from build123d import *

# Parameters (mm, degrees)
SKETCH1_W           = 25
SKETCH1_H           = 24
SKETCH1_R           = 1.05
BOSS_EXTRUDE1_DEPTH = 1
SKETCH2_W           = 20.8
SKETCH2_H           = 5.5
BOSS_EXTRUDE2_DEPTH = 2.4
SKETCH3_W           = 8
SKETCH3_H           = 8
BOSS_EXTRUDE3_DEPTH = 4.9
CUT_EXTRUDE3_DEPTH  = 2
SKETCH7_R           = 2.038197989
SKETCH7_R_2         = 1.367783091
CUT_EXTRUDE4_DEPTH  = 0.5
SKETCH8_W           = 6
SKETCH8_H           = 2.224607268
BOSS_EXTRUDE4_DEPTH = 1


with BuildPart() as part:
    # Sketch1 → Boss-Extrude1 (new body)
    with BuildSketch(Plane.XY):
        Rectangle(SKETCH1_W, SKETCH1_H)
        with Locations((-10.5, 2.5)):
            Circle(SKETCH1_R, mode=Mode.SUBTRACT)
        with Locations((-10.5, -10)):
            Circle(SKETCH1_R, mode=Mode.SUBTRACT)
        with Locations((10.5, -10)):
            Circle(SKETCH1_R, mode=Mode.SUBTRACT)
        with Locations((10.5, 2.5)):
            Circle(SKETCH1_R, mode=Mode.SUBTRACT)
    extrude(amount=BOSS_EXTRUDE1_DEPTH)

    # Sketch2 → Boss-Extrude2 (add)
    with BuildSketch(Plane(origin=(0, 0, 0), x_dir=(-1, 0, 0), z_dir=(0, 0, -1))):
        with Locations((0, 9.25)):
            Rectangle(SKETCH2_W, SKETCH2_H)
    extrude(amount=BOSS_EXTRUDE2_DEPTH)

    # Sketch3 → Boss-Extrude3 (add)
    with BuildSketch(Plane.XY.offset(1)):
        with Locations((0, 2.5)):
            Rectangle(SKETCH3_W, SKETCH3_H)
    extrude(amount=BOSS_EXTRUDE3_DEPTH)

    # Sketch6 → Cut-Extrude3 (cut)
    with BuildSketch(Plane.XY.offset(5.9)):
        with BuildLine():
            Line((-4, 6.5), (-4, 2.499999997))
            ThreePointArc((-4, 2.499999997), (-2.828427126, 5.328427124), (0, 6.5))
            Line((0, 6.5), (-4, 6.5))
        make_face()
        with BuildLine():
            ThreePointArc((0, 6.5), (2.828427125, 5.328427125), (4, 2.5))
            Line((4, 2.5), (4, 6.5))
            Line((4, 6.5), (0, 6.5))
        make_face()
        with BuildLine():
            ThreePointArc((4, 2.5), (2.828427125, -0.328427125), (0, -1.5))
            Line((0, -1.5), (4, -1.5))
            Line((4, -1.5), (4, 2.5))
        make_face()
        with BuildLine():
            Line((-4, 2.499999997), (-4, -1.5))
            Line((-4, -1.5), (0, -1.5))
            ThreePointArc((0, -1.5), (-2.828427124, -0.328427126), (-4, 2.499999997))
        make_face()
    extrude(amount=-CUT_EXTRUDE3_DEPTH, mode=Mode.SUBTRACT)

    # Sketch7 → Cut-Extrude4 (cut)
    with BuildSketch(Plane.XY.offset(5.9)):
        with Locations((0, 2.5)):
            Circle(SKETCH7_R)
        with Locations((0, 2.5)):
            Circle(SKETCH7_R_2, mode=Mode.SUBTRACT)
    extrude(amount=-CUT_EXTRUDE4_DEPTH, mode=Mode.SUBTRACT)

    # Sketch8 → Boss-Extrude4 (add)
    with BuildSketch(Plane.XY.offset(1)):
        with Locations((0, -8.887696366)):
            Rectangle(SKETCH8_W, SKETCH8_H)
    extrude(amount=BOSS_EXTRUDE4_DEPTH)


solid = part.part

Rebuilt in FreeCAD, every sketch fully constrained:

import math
import FreeCAD as App
import Part
import Sketcher

V = App.Vector

doc = App.newDocument("Part")
body = doc.addObject("PartDesign::Body", "Body")

sketch1 = body.newObject("Sketcher::SketchObject", "Sketch")
sketch1.AttachmentSupport = (doc.getObject("XY_Plane"), [""])
sketch1.MapMode = "FlatFace"
sketch1.addGeometry([
    Part.LineSegment(V(-12.5, 12, 0), V(-12.5, -12, 0)),
    Part.LineSegment(V(-12.5, -12, 0), V(12.5, -12, 0)),
    Part.LineSegment(V(12.5, -12, 0), V(12.5, 12, 0)),
    Part.LineSegment(V(12.5, 12, 0), V(-12.5, 12, 0)),
    Part.Circle(V(-10.5, -10, 0), V(0, 0, 1), 1.05),
    Part.Circle(V(10.5, -10, 0), V(0, 0, 1), 1.05),
    Part.Circle(V(-10.5, 2.5, 0), V(0, 0, 1), 1.05),
    Part.Circle(V(10.5, 2.5, 0), V(0, 0, 1), 1.05),
], False)
sketch1.addConstraint([
    Sketcher.Constraint("Coincident", 0, 2, 1, 1),
    Sketcher.Constraint("Coincident", 1, 2, 2, 1),
    Sketcher.Constraint("Coincident", 2, 2, 3, 1),
    Sketcher.Constraint("Coincident", 3, 2, 0, 1),
    Sketcher.Constraint("Vertical", 0),
    Sketcher.Constraint("Horizontal", 1),
    Sketcher.Constraint("Vertical", 2),
    Sketcher.Constraint("Horizontal", 3),
    Sketcher.Constraint("Equal", 4, 5),
    Sketcher.Constraint("Equal", 5, 6),
    Sketcher.Constraint("Equal", 6, 7),
    Sketcher.Constraint("Symmetric", 0, 2, 2, 2, -1, 1),
    Sketcher.Constraint("Symmetric", 4, 3, 5, 3, -2),
    Sketcher.Constraint("Symmetric", 6, 3, 7, 3, -2),
    Sketcher.Constraint("Vertical", 4, 3, 6, 3),
    Sketcher.Constraint("Diameter", 4, 2.1),
    Sketcher.Constraint("DistanceX", 1, 1, 1, 2, 25.0),
    Sketcher.Constraint("DistanceY", 0, 2, 0, 1, 24.0),
    Sketcher.Constraint("DistanceY", 4, 3, -1, 1, 10.0),
    Sketcher.Constraint("DistanceX", 4, 3, 5, 3, 21.0),
    Sketcher.Constraint("DistanceY", -1, 1, 6, 3, 2.5),
])
pad1 = body.newObject("PartDesign::Pad", "Pad")
pad1.Profile = sketch1
pad1.Length = 1

sketch2 = body.newObject("Sketcher::SketchObject", "Sketch001")
sketch2.AttachmentSupport = (doc.getObject("XY_Plane"), [""])
sketch2.MapMode = "FlatFace"
sketch2.addGeometry([
    Part.LineSegment(V(10.4, 12, 0), V(10.4, 6.5, 0)),
    Part.LineSegment(V(10.4, 6.5, 0), V(-10.4, 6.5, 0)),
    Part.LineSegment(V(-10.4, 6.5, 0), V(-10.4, 12, 0)),
    Part.LineSegment(V(-10.4, 12, 0), V(10.4, 12, 0)),
], False)
sketch2.addConstraint([
    Sketcher.Constraint("Coincident", 0, 2, 1, 1),
    Sketcher.Constraint("Coincident", 1, 2, 2, 1),
    Sketcher.Constraint("Coincident", 2, 2, 3, 1),
    Sketcher.Constraint("Coincident", 3, 2, 0, 1),
    Sketcher.Constraint("Vertical", 0),
    Sketcher.Constraint("Horizontal", 1),
    Sketcher.Constraint("Vertical", 2),
    Sketcher.Constraint("Horizontal", 3),
    Sketcher.Constraint("DistanceX", 1, 2, 1, 1, 20.8),
    Sketcher.Constraint("DistanceY", 0, 2, 0, 1, 5.5),
    Sketcher.Constraint("DistanceY", -1, 1, 2, 2, 12.0),
    Sketcher.Constraint("DistanceX", -1, 1, 0, 2, 10.4),
])
pad2 = body.newObject("PartDesign::Pad", "Pad001")
pad2.Profile = sketch2
pad2.Length = 2.4
pad2.Reversed = True

sketch3 = body.newObject("Sketcher::SketchObject", "Sketch002")
sketch3.AttachmentSupport = (doc.getObject("XY_Plane"), [""])
sketch3.MapMode = "FlatFace"
sketch3.AttachmentOffset = App.Placement(V(0, 0, 1), App.Rotation())
sketch3.addGeometry([
    Part.LineSegment(V(-4, 6.5, 0), V(-4, -1.5, 0)),
    Part.LineSegment(V(-4, -1.5, 0), V(4, -1.5, 0)),
    Part.LineSegment(V(4, -1.5, 0), V(4, 6.5, 0)),
    Part.LineSegment(V(4, 6.5, 0), V(-4, 6.5, 0)),
], False)
sketch3.addConstraint([
    Sketcher.Constraint("Coincident", 0, 2, 1, 1),
    Sketcher.Constraint("Coincident", 1, 2, 2, 1),
    Sketcher.Constraint("Coincident", 2, 2, 3, 1),
    Sketcher.Constraint("Coincident", 3, 2, 0, 1),
    Sketcher.Constraint("Vertical", 0),
    Sketcher.Constraint("Horizontal", 1),
    Sketcher.Constraint("Vertical", 2),
    Sketcher.Constraint("Horizontal", 3),
    Sketcher.Constraint("Equal", 3, 0),
    Sketcher.Constraint("DistanceX", 1, 1, 1, 2, 8.0),
    Sketcher.Constraint("DistanceX", 0, 2, -1, 1, 4.0),
    Sketcher.Constraint("DistanceY", 0, 2, -1, 1, 1.5),
])
pad3 = body.newObject("PartDesign::Pad", "Pad002")
pad3.Profile = sketch3
pad3.Length = 4.9

sketch4 = body.newObject("Sketcher::SketchObject", "Sketch003")
sketch4.AttachmentSupport = (doc.getObject("XY_Plane"), [""])
sketch4.MapMode = "FlatFace"
sketch4.AttachmentOffset = App.Placement(V(0, 0, 5.9), App.Rotation())
sketch4.addGeometry([
    Part.LineSegment(V(-4, 6.5, 0), V(-4, 2.5, 0)),
    Part.ArcOfCircle(Part.Circle(V(0, 2.5, 0), V(0, 0, 1), 4), math.radians(90), math.radians(180)),
    Part.LineSegment(V(0, 6.5, 0), V(-4, 6.5, 0)),
    Part.ArcOfCircle(Part.Circle(V(0, 2.5, 0), V(0, 0, 1), 4), math.radians(0), math.radians(90)),
    Part.LineSegment(V(4, 2.5, 0), V(4, 6.5, 0)),
    Part.LineSegment(V(4, 6.5, 0), V(0, 6.5, 0)),
    Part.ArcOfCircle(Part.Circle(V(0, 2.5, 0), V(0, 0, 1), 4), math.radians(-90), math.radians(0)),
    Part.LineSegment(V(0, -1.5, 0), V(4, -1.5, 0)),
    Part.LineSegment(V(4, -1.5, 0), V(4, 2.5, 0)),
    Part.LineSegment(V(-4, 2.5, 0), V(-4, -1.5, 0)),
    Part.LineSegment(V(-4, -1.5, 0), V(0, -1.5, 0)),
    Part.ArcOfCircle(Part.Circle(V(0, 2.5, 0), V(0, 0, 1), 4), math.radians(-180), math.radians(-90)),
], False)
sketch4.addConstraint([
    Sketcher.Constraint("Tangent", 0, 2, 1, 2),
    Sketcher.Constraint("Tangent", 1, 1, 2, 1),
    Sketcher.Constraint("Coincident", 2, 2, 0, 1),
    Sketcher.Constraint("Tangent", 3, 1, 4, 1),
    Sketcher.Constraint("Coincident", 4, 2, 5, 1),
    Sketcher.Constraint("Tangent", 5, 2, 3, 2),
    Sketcher.Constraint("Tangent", 6, 1, 7, 1),
    Sketcher.Constraint("Coincident", 7, 2, 8, 1),
    Sketcher.Constraint("Tangent", 8, 2, 6, 2),
    Sketcher.Constraint("Coincident", 9, 2, 10, 1),
    Sketcher.Constraint("Tangent", 10, 2, 11, 2),
    Sketcher.Constraint("Tangent", 11, 1, 9, 1),
    Sketcher.Constraint("Vertical", 0),
    Sketcher.Constraint("Horizontal", 2),
    Sketcher.Constraint("Vertical", 4),
    Sketcher.Constraint("Horizontal", 5),
    Sketcher.Constraint("Horizontal", 7),
    Sketcher.Constraint("Vertical", 8),
    Sketcher.Constraint("Vertical", 9),
    Sketcher.Constraint("Horizontal", 10),
    Sketcher.Constraint("Coincident", 3, 3, 1, 3),
    Sketcher.Constraint("Coincident", 6, 3, 1, 3),
    Sketcher.Constraint("Coincident", 11, 3, 1, 3),
    Sketcher.Constraint("Equal", 1, 3),
    Sketcher.Constraint("Equal", 3, 6),
    Sketcher.Constraint("Equal", 6, 11),
    Sketcher.Constraint("PointOnObject", 1, 3, -2),
    Sketcher.Constraint("Radius", 1, 4.0),
    Sketcher.Constraint("DistanceY", -1, 1, 1, 3, 2.5),
])
pocket1 = body.newObject("PartDesign::Pocket", "Pocket")
pocket1.Profile = sketch4
pocket1.Length = 2

sketch5 = body.newObject("Sketcher::SketchObject", "Sketch004")
sketch5.AttachmentSupport = (doc.getObject("XY_Plane"), [""])
sketch5.MapMode = "FlatFace"
sketch5.AttachmentOffset = App.Placement(V(0, 0, 5.9), App.Rotation())
sketch5.addGeometry([
    Part.Circle(V(0, 2.5, 0), V(0, 0, 1), 2.038198),
    Part.Circle(V(0, 2.5, 0), V(0, 0, 1), 1.367783),
], False)
sketch5.addConstraint([
    Sketcher.Constraint("Coincident", 1, 3, 0, 3),
    Sketcher.Constraint("PointOnObject", 0, 3, -2),
    Sketcher.Constraint("DistanceY", -1, 1, 0, 3, 2.5),
    Sketcher.Constraint("Diameter", 0, 4.076396),
    Sketcher.Constraint("Diameter", 1, 2.735566),
])
pocket2 = body.newObject("PartDesign::Pocket", "Pocket001")
pocket2.Profile = sketch5
pocket2.Length = 0.5

sketch6 = body.newObject("Sketcher::SketchObject", "Sketch005")
sketch6.AttachmentSupport = (doc.getObject("XY_Plane"), [""])
sketch6.MapMode = "FlatFace"
sketch6.AttachmentOffset = App.Placement(V(0, 0, 1), App.Rotation())
sketch6.addGeometry([
    Part.LineSegment(V(-3, -7.775393, 0), V(-3, -10, 0)),
    Part.LineSegment(V(-3, -10, 0), V(3, -10, 0)),
    Part.LineSegment(V(3, -10, 0), V(3, -7.775393, 0)),
    Part.LineSegment(V(3, -7.775393, 0), V(-3, -7.775393, 0)),
], False)
sketch6.addConstraint([
    Sketcher.Constraint("Coincident", 0, 2, 1, 1),
    Sketcher.Constraint("Coincident", 1, 2, 2, 1),
    Sketcher.Constraint("Coincident", 2, 2, 3, 1),
    Sketcher.Constraint("Coincident", 3, 2, 0, 1),
    Sketcher.Constraint("Vertical", 0),
    Sketcher.Constraint("Horizontal", 1),
    Sketcher.Constraint("Vertical", 2),
    Sketcher.Constraint("Horizontal", 3),
    Sketcher.Constraint("DistanceX", 1, 1, 1, 2, 6.0),
    Sketcher.Constraint("DistanceX", 0, 2, -1, 1, 3.0),
    Sketcher.Constraint("DistanceY", 0, 2, -1, 1, 10.0),
    Sketcher.Constraint("DistanceY", 0, 2, 0, 1, 2.224607),
])
pad4 = body.newObject("PartDesign::Pad", "Pad003")
pad4.Profile = sketch6
pad4.Length = 1

doc.recompute()
